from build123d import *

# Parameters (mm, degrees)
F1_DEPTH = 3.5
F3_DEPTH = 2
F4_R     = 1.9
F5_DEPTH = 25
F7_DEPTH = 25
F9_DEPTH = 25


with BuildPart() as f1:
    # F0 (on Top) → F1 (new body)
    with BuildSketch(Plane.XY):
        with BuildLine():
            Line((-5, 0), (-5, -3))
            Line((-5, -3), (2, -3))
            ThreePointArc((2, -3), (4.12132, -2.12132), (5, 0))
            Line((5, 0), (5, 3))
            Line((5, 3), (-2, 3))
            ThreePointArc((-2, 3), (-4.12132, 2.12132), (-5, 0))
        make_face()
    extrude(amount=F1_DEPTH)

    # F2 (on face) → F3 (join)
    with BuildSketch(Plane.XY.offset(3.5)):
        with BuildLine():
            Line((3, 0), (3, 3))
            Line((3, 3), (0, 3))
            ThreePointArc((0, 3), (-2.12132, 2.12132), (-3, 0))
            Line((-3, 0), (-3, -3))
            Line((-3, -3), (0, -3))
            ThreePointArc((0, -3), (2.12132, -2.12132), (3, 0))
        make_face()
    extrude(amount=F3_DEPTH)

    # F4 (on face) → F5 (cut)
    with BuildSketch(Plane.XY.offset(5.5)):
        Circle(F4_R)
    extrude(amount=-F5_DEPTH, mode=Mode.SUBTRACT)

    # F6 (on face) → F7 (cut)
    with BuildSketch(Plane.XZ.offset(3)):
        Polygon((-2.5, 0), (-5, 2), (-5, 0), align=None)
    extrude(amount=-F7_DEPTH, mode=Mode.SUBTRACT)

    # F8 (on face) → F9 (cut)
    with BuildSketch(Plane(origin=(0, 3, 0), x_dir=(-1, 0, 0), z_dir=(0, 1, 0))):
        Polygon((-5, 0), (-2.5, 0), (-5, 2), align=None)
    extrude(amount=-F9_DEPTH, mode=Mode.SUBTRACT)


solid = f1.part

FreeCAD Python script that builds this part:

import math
import FreeCAD as App
import Part
import Sketcher

doc = App.newDocument("Part")
body = doc.addObject("PartDesign::Body", "Body")

# Sketch on XY plane
sketch1 = doc.addObject("Sketcher::SketchObject", "Sketch")
body.addObject(sketch1)
sketch1.AttachmentSupport = (doc.XY_Plane, [""])
sketch1.MapMode = "FlatFace"
sketch1.addGeometry([
    Part.LineSegment(App.Vector(-5, 0, 0), App.Vector(-5, -3, 0)),  # 0
    Part.LineSegment(App.Vector(-5, -3, 0), App.Vector(2, -3, 0)),  # 1
    Part.ArcOfCircle(Part.Circle(App.Vector(2, 0, 0), App.Vector(0, 0, 1), 3), math.radians(-90), math.radians(0)),  # 2
    Part.LineSegment(App.Vector(5, 0, 0), App.Vector(5, 3, 0)),  # 3
    Part.LineSegment(App.Vector(5, 3, 0), App.Vector(-2, 3, 0)),  # 4
    Part.ArcOfCircle(Part.Circle(App.Vector(-2, 0, 0), App.Vector(0, 0, 1), 3), math.radians(90), math.radians(180)),  # 5
], False)
sketch1.addConstraint([
    Sketcher.Constraint("Coincident", 0, 2, 1, 1),
    Sketcher.Constraint("Tangent", 1, 2, 2, 1),
    Sketcher.Constraint("Tangent", 2, 2, 3, 1),
    Sketcher.Constraint("Coincident", 3, 2, 4, 1),
    Sketcher.Constraint("Tangent", 4, 2, 5, 1),
    Sketcher.Constraint("Tangent", 5, 2, 0, 1),
    Sketcher.Constraint("Vertical", 0),
    Sketcher.Constraint("Horizontal", 1),
    Sketcher.Constraint("Vertical", 3),
    Sketcher.Constraint("Horizontal", 4),
    Sketcher.Constraint("Equal", 2, 5),
    Sketcher.Constraint("Symmetric", 2, 3, 5, 3, -1, 1),
    Sketcher.Constraint("PointOnObject", 2, 3, -1),
    Sketcher.Constraint("Radius", 2, 3.000001),
    Sketcher.Constraint("DistanceX", 1, 1, 1, 2, 7.0),
])
pad1 = doc.addObject("PartDesign::Pad", "Pad")
body.addObject(pad1)
pad1.Profile = sketch1
pad1.Length = 3.5

# Sketch on XY plane
sketch2 = doc.addObject("Sketcher::SketchObject", "Sketch001")
body.addObject(sketch2)
sketch2.AttachmentSupport = (doc.XY_Plane, [""])
sketch2.MapMode = "FlatFace"
sketch2.AttachmentOffset = App.Placement(App.Vector(0, 0, 3.5), App.Rotation())
sketch2.addGeometry([
    Part.LineSegment(App.Vector(3, 0, 0), App.Vector(3, 3, 0)),  # 0
    Part.LineSegment(App.Vector(3, 3, 0), App.Vector(0, 3, 0)),  # 1
    Part.ArcOfCircle(Part.Circle(App.Vector(0, 0, 0), App.Vector(0, 0, 1), 3), math.radians(90), math.radians(180)),  # 2
    Part.LineSegment(App.Vector(-3, 0, 0), App.Vector(-3, -3, 0)),  # 3
    Part.LineSegment(App.Vector(-3, -3, 0), App.Vector(0, -3, 0)),  # 4
    Part.ArcOfCircle(Part.Circle(App.Vector(0, 0, 0), App.Vector(0, 0, 1), 3), math.radians(-90), math.radians(0)),  # 5
], False)
sketch2.addConstraint([
    Sketcher.Constraint("Coincident", 0, 2, 1, 1),
    Sketcher.Constraint("Tangent", 1, 2, 2, 1),
    Sketcher.Constraint("Tangent", 2, 2, 3, 1),
    Sketcher.Constraint("Coincident", 3, 2, 4, 1),
    Sketcher.Constraint("Tangent", 4, 2, 5, 1),
    Sketcher.Constraint("Tangent", 5, 2, 0, 1),
    Sketcher.Constraint("Vertical", 0),
    Sketcher.Constraint("Horizontal", 1),
    Sketcher.Constraint("Vertical", 3),
    Sketcher.Constraint("Horizontal", 4),
    Sketcher.Constraint("Coincident", 2, 3, -1, 1),
    Sketcher.Constraint("Coincident", 5, 3, -1, 1),
    Sketcher.Constraint("Equal", 2, 5),
    Sketcher.Constraint("Radius", 2, 3.000001),
])
pad2 = doc.addObject("PartDesign::Pad", "Pad001")
body.addObject(pad2)
pad2.Profile = sketch2
pad2.Length = 2

# Sketch on XY plane
sketch3 = doc.addObject("Sketcher::SketchObject", "Sketch002")
body.addObject(sketch3)
sketch3.AttachmentSupport = (doc.XY_Plane, [""])
sketch3.MapMode = "FlatFace"
sketch3.AttachmentOffset = App.Placement(App.Vector(0, 0, 5.5), App.Rotation())
sketch3.addGeometry(Part.Circle(App.Vector(0, 0, 0), App.Vector(0, 0, 1), 1.9), False)
sketch3.addConstraint([
    Sketcher.Constraint("Coincident", 0, 3, -1, 1),
    Sketcher.Constraint("Diameter", 0, 3.8),
])
pocket1 = doc.addObject("PartDesign::Pocket", "Pocket")
body.addObject(pocket1)
pocket1.Profile = sketch3
pocket1.Length = 25

# Sketch on XZ plane
sketch4 = doc.addObject("Sketcher::SketchObject", "Sketch003")
body.addObject(sketch4)
sketch4.AttachmentSupport = (doc.XZ_Plane, [""])
sketch4.MapMode = "FlatFace"
sketch4.AttachmentOffset = App.Placement(App.Vector(0, 0, 3), App.Rotation())
sketch4.addGeometry([
    Part.LineSegment(App.Vector(-2.5, 0, 0), App.Vector(-5, 2, 0)),
    Part.LineSegment(App.Vector(-5, 2, 0), App.Vector(-5, 0, 0)),
    Part.LineSegment(App.Vector(-5, 0, 0), App.Vector(-2.5, 0, 0)),
], False)
sketch4.addConstraint([
    Sketcher.Constraint("Coincident", 0, 2, 1, 1),
    Sketcher.Constraint("Coincident", 1, 2, 2, 1),
    Sketcher.Constraint("Coincident", 2, 2, 0, 1),
    Sketcher.Constraint("Vertical", 1),
    Sketcher.Constraint("Horizontal", 2),
    Sketcher.Constraint("PointOnObject", 1, 2, -1),
    Sketcher.Constraint("DistanceY", 1, 2, 1, 1, 2.0),
    Sketcher.Constraint("DistanceX", 2, 1, 2, 2, 2.5),
    Sketcher.Constraint("DistanceX", 0, 2, -1, 1, 5.0),
])
pocket2 = doc.addObject("PartDesign::Pocket", "Pocket001")
body.addObject(pocket2)
pocket2.Profile = sketch4
pocket2.Length = 25

# Sketch on XZ plane
sketch5 = doc.addObject("Sketcher::SketchObject", "Sketch004")
body.addObject(sketch5)
sketch5.AttachmentSupport = (doc.XZ_Plane, [""])
sketch5.MapMode = "FlatFace"
sketch5.AttachmentOffset = App.Placement(App.Vector(0, 0, -3), App.Rotation())
sketch5.addGeometry([
    Part.LineSegment(App.Vector(5, 0, 0), App.Vector(2.5, 0, 0)),
    Part.LineSegment(App.Vector(2.5, 0, 0), App.Vector(5, 2, 0)),
    Part.LineSegment(App.Vector(5, 2, 0), App.Vector(5, 0, 0)),
], False)
sketch5.addConstraint([
    Sketcher.Constraint("Coincident", 0, 2, 1, 1),
    Sketcher.Constraint("Coincident", 1, 2, 2, 1),
    Sketcher.Constraint("Coincident", 2, 2, 0, 1),
    Sketcher.Constraint("Horizontal", 0),
    Sketcher.Constraint("Vertical", 2),
    Sketcher.Constraint("PointOnObject", 0, 2, -1),
    Sketcher.Constraint("DistanceY", 2, 2, 2, 1, 2.0),
    Sketcher.Constraint("DistanceX", 0, 2, 0, 1, 2.5),
    Sketcher.Constraint("DistanceX", -1, 1, 1, 2, 5.0),
])
pocket3 = doc.addObject("PartDesign::Pocket", "Pocket002")
body.addObject(pocket3)
pocket3.Profile = sketch5
pocket3.Length = 25
pocket3.Reversed = True

doc.recompute()
